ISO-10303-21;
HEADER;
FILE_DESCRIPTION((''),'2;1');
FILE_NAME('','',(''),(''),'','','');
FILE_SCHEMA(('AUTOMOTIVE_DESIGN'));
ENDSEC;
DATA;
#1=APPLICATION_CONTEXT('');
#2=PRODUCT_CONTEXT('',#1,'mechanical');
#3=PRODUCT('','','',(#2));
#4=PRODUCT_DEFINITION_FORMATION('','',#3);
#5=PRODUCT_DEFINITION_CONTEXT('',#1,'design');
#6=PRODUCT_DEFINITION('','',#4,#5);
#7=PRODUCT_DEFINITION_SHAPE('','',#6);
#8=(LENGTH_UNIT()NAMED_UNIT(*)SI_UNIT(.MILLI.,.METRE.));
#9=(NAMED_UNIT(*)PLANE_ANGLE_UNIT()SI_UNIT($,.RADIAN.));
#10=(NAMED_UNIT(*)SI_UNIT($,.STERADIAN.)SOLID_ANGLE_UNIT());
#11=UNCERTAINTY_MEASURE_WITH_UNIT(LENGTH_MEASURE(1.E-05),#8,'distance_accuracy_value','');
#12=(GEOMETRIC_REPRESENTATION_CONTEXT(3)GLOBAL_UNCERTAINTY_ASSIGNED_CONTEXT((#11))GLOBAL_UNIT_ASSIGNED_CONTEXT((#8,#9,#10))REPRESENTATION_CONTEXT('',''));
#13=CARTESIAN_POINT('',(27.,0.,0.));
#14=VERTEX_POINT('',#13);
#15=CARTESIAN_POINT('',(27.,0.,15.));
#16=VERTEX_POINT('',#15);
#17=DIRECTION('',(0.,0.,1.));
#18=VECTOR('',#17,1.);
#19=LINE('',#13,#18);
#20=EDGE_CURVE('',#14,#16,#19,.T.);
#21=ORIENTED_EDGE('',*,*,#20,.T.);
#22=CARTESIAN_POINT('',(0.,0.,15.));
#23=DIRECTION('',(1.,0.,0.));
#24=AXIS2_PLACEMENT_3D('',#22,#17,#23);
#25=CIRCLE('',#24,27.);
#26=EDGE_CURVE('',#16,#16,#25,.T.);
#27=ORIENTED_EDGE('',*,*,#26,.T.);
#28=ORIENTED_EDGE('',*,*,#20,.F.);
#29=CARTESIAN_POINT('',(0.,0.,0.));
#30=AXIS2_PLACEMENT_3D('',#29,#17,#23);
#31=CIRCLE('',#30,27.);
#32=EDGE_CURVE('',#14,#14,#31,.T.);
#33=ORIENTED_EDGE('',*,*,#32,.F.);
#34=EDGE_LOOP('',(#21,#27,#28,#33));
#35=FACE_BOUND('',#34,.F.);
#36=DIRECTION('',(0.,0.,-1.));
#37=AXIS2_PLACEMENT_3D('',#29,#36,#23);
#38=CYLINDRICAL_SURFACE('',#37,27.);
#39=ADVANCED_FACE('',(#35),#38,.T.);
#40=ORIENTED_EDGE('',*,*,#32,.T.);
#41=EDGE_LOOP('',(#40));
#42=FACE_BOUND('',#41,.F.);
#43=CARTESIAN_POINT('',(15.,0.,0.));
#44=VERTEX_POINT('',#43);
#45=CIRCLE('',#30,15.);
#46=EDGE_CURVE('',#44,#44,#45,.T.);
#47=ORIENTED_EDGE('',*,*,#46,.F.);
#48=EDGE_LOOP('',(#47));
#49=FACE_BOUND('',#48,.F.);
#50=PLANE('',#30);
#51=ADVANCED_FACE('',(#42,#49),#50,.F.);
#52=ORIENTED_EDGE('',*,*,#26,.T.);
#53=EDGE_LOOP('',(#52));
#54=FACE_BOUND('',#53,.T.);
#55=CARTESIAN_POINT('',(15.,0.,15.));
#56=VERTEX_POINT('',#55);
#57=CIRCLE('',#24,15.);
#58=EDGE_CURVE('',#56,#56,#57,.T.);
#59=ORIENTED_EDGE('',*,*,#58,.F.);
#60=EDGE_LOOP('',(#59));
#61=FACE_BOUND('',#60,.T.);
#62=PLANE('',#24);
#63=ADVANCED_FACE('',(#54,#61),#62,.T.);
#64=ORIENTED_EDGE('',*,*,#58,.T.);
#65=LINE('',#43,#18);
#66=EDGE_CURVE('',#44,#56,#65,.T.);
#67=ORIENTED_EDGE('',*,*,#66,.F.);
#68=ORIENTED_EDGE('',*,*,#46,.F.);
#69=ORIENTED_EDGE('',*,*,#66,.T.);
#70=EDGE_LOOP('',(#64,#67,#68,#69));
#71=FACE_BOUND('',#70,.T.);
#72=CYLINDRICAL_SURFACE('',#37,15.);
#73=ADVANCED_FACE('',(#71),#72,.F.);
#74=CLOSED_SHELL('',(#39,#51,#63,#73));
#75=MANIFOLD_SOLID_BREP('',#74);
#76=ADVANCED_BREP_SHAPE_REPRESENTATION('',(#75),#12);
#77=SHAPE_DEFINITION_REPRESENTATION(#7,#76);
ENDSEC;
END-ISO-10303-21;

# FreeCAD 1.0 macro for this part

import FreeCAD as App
import Part
import Sketcher
from FreeCAD import Vector

doc = App.newDocument("Part")
params = doc.addObject("Spreadsheet::Sheet", "Params")
for row, (alias, value) in enumerate([
    ("sketch1_diameter", "54 mm"),
    ("sketch1_diameter2", "30 mm"),
    ("pad1_length", "15 mm"),
], start=1):
    params.set(f"A{row}", alias)
    params.set(f"B{row}", "=" + value)
    params.setAlias(f"B{row}", alias)

body = doc.addObject("PartDesign::Body", "Body")

sketch1 = body.newObject("Sketcher::SketchObject", "Sketch")
sketch1.AttachmentSupport = (doc.getObject("XY_Plane"), [""])
sketch1.MapMode = "FlatFace"
sketch1.addGeometry([
    Part.Circle(Vector(0, 0, 0), Vector(0, 0, 1), 27),
    Part.Circle(Vector(0, 0, 0), Vector(0, 0, 1), 15),
], False)
sketch1.addConstraint([
    Sketcher.Constraint("Coincident", 0, 3, -1, 1),
    Sketcher.Constraint("Coincident", 1, 3, -1, 1),
    Sketcher.Constraint("Diameter", 0, 54.0),
    Sketcher.Constraint("Diameter", 1, 30.0),
])
sketch1.setExpression("Constraints[2]", "Params.sketch1_diameter")
sketch1.setExpression("Constraints[3]", "Params.sketch1_diameter2")
pad1 = body.newObject("PartDesign::Pad", "Pad")
pad1.Profile = sketch1
pad1.setExpression("Length", "Params.pad1_length")

doc.recompute()
